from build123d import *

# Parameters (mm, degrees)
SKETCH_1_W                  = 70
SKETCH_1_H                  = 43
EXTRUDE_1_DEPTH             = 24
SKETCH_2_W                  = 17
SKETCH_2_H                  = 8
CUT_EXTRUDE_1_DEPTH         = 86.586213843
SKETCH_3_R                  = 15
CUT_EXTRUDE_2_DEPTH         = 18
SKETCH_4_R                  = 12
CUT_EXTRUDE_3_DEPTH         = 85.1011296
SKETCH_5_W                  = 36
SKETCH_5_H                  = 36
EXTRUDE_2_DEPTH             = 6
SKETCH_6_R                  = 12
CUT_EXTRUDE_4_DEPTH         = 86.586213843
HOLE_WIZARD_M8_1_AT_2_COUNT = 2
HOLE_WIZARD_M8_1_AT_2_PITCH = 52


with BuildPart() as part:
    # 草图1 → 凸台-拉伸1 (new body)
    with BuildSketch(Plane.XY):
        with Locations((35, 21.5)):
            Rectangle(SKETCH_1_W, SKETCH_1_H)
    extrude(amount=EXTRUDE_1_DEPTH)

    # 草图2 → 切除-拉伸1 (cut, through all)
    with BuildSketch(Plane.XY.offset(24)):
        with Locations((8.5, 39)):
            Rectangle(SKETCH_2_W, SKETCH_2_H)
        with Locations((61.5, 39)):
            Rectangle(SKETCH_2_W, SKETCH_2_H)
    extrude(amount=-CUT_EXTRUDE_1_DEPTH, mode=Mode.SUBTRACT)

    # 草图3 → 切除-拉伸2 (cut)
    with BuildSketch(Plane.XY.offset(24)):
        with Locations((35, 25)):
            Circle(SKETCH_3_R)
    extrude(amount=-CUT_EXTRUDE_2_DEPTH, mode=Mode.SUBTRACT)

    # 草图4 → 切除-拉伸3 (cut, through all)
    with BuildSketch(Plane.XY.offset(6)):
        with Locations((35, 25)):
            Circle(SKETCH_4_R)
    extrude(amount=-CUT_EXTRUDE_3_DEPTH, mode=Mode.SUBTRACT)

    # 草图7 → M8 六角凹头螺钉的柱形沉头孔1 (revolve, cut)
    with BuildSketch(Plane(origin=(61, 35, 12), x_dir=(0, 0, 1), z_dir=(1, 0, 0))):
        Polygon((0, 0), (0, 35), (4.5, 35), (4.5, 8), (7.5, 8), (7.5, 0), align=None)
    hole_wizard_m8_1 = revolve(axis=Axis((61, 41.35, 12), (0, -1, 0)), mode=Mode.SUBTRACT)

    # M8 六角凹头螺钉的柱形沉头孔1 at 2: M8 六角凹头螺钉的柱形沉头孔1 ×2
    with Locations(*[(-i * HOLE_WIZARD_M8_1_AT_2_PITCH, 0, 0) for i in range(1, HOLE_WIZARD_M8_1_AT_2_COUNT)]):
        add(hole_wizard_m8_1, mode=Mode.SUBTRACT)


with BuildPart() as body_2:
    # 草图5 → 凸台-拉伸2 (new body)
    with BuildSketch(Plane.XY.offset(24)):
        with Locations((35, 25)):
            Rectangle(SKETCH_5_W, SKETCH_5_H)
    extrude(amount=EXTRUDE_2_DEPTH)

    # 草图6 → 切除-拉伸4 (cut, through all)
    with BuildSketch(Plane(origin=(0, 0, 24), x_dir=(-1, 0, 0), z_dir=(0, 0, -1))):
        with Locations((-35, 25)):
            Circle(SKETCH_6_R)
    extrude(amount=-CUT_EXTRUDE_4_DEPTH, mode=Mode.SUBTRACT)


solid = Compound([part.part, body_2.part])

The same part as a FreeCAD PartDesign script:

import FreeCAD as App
import Part
import Sketcher


def add_polygon(sketch, points):
    """Adds a closed chain of lines whose ends are joined by coincident constraints."""
    first, n = sketch.GeometryCount, len(points)
    for a, b in zip(points, points[1:] + points[:1]):
        sketch.addGeometry(Part.LineSegment(App.Vector(*a, 0), App.Vector(*b, 0)), False)
    for i in range(n):
        sketch.addConstraint(Sketcher.Constraint("Coincident", first + i, 2, first + (i + 1) % n, 1))

doc = App.newDocument("Part")
body = doc.addObject("PartDesign::Body", "Body")

sketch1 = body.newObject("Sketcher::SketchObject", "Sketch")
sketch1.AttachmentSupport = (doc.getObject("XY_Plane"), [""])
sketch1.MapMode = "FlatFace"
add_polygon(sketch1, [(0, 43), (0, 0), (70, 0), (70, 43)])
sketch1.addConstraint([
    Sketcher.Constraint("Vertical", 0),
    Sketcher.Constraint("Horizontal", 1),
    Sketcher.Constraint("Vertical", 2),
    Sketcher.Constraint("Horizontal", 3),
    Sketcher.Constraint("Coincident", 0, 2, -1, 1),
    Sketcher.Constraint("DistanceX", 1, 1, 1, 2, 70.0),
    Sketcher.Constraint("DistanceY", 0, 2, 0, 1, 43.0),
])
pad1 = body.newObject("PartDesign::Pad", "Pad")
pad1.Profile = sketch1
pad1.Length = 24

sketch2 = body.newObject("Sketcher::SketchObject", "Sketch001")
sketch2.AttachmentSupport = (doc.getObject("XY_Plane"), [""])
sketch2.MapMode = "FlatFace"
sketch2.AttachmentOffset = App.Placement(App.Vector(0, 0, 24), App.Rotation())
add_polygon(sketch2, [(0, 43), (0, 35), (17, 35), (17, 43)])
add_polygon(sketch2, [(53, 43), (53, 35), (70, 35), (70, 43)])
sketch2.addConstraint([
    Sketcher.Constraint("Vertical", 0),
    Sketcher.Constraint("Horizontal", 1),
    Sketcher.Constraint("Vertical", 2),
    Sketcher.Constraint("Horizontal", 3),
    Sketcher.Constraint("Vertical", 4),
    Sketcher.Constraint("Horizontal", 5),
    Sketcher.Constraint("Vertical", 6),
    Sketcher.Constraint("Horizontal", 7),
    Sketcher.Constraint("PointOnObject", 0, 2, -2),
    Sketcher.Constraint("Horizontal", 1, 2, 4, 2),
    Sketcher.Constraint("Horizontal", 3, 2, 6, 2),
    Sketcher.Constraint("Equal", 3, 5),
    Sketcher.Constraint("DistanceX", 1, 1, 1, 2, 17.0),
    Sketcher.Constraint("DistanceY", 0, 2, 0, 1, 8.0),
    Sketcher.Constraint("DistanceY", -1, 1, 0, 2, 35.0),
    Sketcher.Constraint("DistanceX", -1, 1, 4, 2, 53.0),
])
pocket1 = body.newObject("PartDesign::Pocket", "Pocket")
pocket1.Profile = sketch2
pocket1.Type = "ThroughAll"

sketch3 = body.newObject("Sketcher::SketchObject", "Sketch002")
sketch3.AttachmentSupport = (doc.getObject("XY_Plane"), [""])
sketch3.MapMode = "FlatFace"
sketch3.AttachmentOffset = App.Placement(App.Vector(0, 0, 24), App.Rotation())
sketch3.addGeometry(Part.Circle(App.Vector(35, 25, 0), App.Vector(0, 0, 1), 15), False)
sketch3.addConstraint([
    Sketcher.Constraint("Diameter", 0, 30.0),
    Sketcher.Constraint("DistanceX", -1, 1, 0, 3, 35.0),
    Sketcher.Constraint("DistanceY", -1, 1, 0, 3, 25.0),
])
pocket2 = body.newObject("PartDesign::Pocket", "Pocket001")
pocket2.Profile = sketch3
pocket2.Length = 18

sketch4 = body.newObject("Sketcher::SketchObject", "Sketch003")
sketch4.AttachmentSupport = (doc.getObject("XY_Plane"), [""])
sketch4.MapMode = "FlatFace"
sketch4.AttachmentOffset = App.Placement(App.Vector(0, 0, 6), App.Rotation())
sketch4.addGeometry(Part.Circle(App.Vector(35, 25, 0), App.Vector(0, 0, 1), 12), False)
sketch4.addConstraint([
    Sketcher.Constraint("Diameter", 0, 24.0),
    Sketcher.Constraint("DistanceX", -1, 1, 0, 3, 35.0),
    Sketcher.Constraint("DistanceY", -1, 1, 0, 3, 25.0),
])
pocket3 = body.newObject("PartDesign::Pocket", "Pocket002")
pocket3.Profile = sketch4
pocket3.Type = "ThroughAll"

sketch5 = body.newObject("Sketcher::SketchObject", "Sketch004")
sketch5.AttachmentSupport = (doc.getObject("YZ_Plane"), [""])
sketch5.MapMode = "FlatFace"
sketch5.AttachmentOffset = App.Placement(App.Vector(0, 0, 61), App.Rotation())
add_polygon(sketch5, [(0, 12), (35, 12), (35, 19.5), (27, 19.5), (27, 16.5), (0, 16.5)])
sketch5.addGeometry(Part.LineSegment(App.Vector(35, 12, 0), App.Vector(0, 12, 0)), True)
sketch5.addConstraint([
    Sketcher.Constraint("Horizontal", 0),
    Sketcher.Constraint("Vertical", 1),
    Sketcher.Constraint("Horizontal", 2),
    Sketcher.Constraint("Vertical", 3),
    Sketcher.Constraint("Horizontal", 4),
    Sketcher.Constraint("Vertical", 5),
    Sketcher.Constraint("Horizontal", 6),
    Sketcher.Constraint("Coincident", 6, 1, 0, 2),
    Sketcher.Constraint("PointOnObject", 4, 2, -2),
    Sketcher.Constraint("PointOnObject", 6, 2, -2),
    Sketcher.Constraint("DistanceX", 0, 1, 0, 2, 35.0),
    Sketcher.Constraint("DistanceX", 2, 2, 2, 1, 8.0),
    Sketcher.Constraint("DistanceY", 3, 2, 3, 1, 3.0),
    Sketcher.Constraint("DistanceY", 1, 1, 1, 2, 7.5),
    Sketcher.Constraint("DistanceY", -1, 1, 0, 2, 12.0),
])
groove = body.newObject("PartDesign::Groove", "Groove")
groove.Profile = sketch5
groove.ReferenceAxis = (sketch5, ["Axis0"])
groove.Angle = 360
doc.recompute()

linearpattern = body.newObject("PartDesign::LinearPattern", "LinearPattern")
linearpattern.Originals = [groove]
linearpattern.Direction = (doc.getObject("X_Axis"), [""])
linearpattern.Mode = "offset"
linearpattern.Offset = 52
linearpattern.Occurrences = 2
linearpattern.Reversed = True
body.Tip = linearpattern
body2 = doc.addObject("PartDesign::Body", "Body001")

sketch6 = body2.newObject("Sketcher::SketchObject", "Sketch005")
sketch6.AttachmentSupport = (doc.getObject("XY_Plane001"), [""])
sketch6.MapMode = "FlatFace"
sketch6.AttachmentOffset = App.Placement(App.Vector(0, 0, 24), App.Rotation())
add_polygon(sketch6, [(17, 43), (17, 7), (53, 7), (53, 43)])
sketch6.addConstraint([
    Sketcher.Constraint("Vertical", 0),
    Sketcher.Constraint("Horizontal", 1),
    Sketcher.Constraint("Vertical", 2),
    Sketcher.Constraint("Horizontal", 3),
    Sketcher.Constraint("Equal", 3, 0),
    Sketcher.Constraint("DistanceX", 1, 1, 1, 2, 36.0),
    Sketcher.Constraint("DistanceX", -1, 1, 0, 2, 17.0),
    Sketcher.Constraint("DistanceY", -1, 1, 0, 2, 7.0),
])
pad2 = body2.newObject("PartDesign::Pad", "Pad001")
pad2.Profile = sketch6
pad2.Length = 6

sketch7 = body2.newObject("Sketcher::SketchObject", "Sketch006")
sketch7.AttachmentSupport = (doc.getObject("XY_Plane001"), [""])
sketch7.MapMode = "FlatFace"
sketch7.AttachmentOffset = App.Placement(App.Vector(0, 0, 24), App.Rotation())
sketch7.addGeometry(Part.Circle(App.Vector(35, 25, 0), App.Vector(0, 0, 1), 12), False)
sketch7.addConstraint([
    Sketcher.Constraint("Diameter", 0, 24.0),
    Sketcher.Constraint("DistanceX", -1, 1, 0, 3, 35.0),
    Sketcher.Constraint("DistanceY", -1, 1, 0, 3, 25.0),
])
pocket4 = body2.newObject("PartDesign::Pocket", "Pocket003")
pocket4.Profile = sketch7
pocket4.Type = "ThroughAll"
pocket4.Reversed = True

doc.recompute()
